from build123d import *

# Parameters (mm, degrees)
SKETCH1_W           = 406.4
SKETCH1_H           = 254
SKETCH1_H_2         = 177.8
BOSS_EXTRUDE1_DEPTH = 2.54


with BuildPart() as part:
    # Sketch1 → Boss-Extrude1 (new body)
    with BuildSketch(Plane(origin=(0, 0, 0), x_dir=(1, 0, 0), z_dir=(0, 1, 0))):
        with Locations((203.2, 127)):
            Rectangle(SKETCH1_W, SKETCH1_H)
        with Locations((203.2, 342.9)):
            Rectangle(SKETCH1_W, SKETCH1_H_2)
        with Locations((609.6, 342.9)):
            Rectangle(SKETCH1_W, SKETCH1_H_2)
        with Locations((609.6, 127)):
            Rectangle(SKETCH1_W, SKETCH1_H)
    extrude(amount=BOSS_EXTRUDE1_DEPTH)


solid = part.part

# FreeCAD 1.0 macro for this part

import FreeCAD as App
import Part
import Sketcher
Q = App.Units.Quantity


def add_polygon(sketch, points):
    """Adds a closed chain of lines whose ends are joined by coincident constraints."""
    first, n = sketch.GeometryCount, len(points)
    for a, b in zip(points, points[1:] + points[:1]):
        sketch.addGeometry(Part.LineSegment(App.Vector(*a, 0), App.Vector(*b, 0)), False)
    for i in range(n):
        sketch.addConstraint(Sketcher.Constraint("Coincident", first + i, 2, first + (i + 1) % n, 1))

doc = App.newDocument("Part")
body = doc.addObject("PartDesign::Body", "Body")

# Sketch on XZ plane
sketch1 = body.newObject("Sketcher::SketchObject", "Sketch")
sketch1.AttachmentSupport = (doc.getObject("XZ_Plane"), [""])
sketch1.MapMode = "FlatFace"
add_polygon(sketch1, [(0, 0), (813, 0), (813, -432), (0, -432)])  # lines 0-3
sketch1.addConstraint(Sketcher.Constraint("Horizontal", 0))
sketch1.addConstraint(Sketcher.Constraint("Vertical", 1))
sketch1.addConstraint(Sketcher.Constraint("Horizontal", 2))
sketch1.addConstraint(Sketcher.Constraint("Vertical", 3))
sketch1.addConstraint(Sketcher.Constraint("Coincident", 3, 2, -1, 1))
sketch1.addConstraint(Sketcher.Constraint("DistanceX", 0, 1, 0, 2, Q("32 in")))
sketch1.addConstraint(Sketcher.Constraint("DistanceY", 1, 2, 1, 1, Q("17 in")))
pad1 = body.newObject("PartDesign::Pad", "Pad")
pad1.Profile = sketch1
pad1.Length = Q("0.1 in")
pad1.Reversed = True

doc.recompute()
